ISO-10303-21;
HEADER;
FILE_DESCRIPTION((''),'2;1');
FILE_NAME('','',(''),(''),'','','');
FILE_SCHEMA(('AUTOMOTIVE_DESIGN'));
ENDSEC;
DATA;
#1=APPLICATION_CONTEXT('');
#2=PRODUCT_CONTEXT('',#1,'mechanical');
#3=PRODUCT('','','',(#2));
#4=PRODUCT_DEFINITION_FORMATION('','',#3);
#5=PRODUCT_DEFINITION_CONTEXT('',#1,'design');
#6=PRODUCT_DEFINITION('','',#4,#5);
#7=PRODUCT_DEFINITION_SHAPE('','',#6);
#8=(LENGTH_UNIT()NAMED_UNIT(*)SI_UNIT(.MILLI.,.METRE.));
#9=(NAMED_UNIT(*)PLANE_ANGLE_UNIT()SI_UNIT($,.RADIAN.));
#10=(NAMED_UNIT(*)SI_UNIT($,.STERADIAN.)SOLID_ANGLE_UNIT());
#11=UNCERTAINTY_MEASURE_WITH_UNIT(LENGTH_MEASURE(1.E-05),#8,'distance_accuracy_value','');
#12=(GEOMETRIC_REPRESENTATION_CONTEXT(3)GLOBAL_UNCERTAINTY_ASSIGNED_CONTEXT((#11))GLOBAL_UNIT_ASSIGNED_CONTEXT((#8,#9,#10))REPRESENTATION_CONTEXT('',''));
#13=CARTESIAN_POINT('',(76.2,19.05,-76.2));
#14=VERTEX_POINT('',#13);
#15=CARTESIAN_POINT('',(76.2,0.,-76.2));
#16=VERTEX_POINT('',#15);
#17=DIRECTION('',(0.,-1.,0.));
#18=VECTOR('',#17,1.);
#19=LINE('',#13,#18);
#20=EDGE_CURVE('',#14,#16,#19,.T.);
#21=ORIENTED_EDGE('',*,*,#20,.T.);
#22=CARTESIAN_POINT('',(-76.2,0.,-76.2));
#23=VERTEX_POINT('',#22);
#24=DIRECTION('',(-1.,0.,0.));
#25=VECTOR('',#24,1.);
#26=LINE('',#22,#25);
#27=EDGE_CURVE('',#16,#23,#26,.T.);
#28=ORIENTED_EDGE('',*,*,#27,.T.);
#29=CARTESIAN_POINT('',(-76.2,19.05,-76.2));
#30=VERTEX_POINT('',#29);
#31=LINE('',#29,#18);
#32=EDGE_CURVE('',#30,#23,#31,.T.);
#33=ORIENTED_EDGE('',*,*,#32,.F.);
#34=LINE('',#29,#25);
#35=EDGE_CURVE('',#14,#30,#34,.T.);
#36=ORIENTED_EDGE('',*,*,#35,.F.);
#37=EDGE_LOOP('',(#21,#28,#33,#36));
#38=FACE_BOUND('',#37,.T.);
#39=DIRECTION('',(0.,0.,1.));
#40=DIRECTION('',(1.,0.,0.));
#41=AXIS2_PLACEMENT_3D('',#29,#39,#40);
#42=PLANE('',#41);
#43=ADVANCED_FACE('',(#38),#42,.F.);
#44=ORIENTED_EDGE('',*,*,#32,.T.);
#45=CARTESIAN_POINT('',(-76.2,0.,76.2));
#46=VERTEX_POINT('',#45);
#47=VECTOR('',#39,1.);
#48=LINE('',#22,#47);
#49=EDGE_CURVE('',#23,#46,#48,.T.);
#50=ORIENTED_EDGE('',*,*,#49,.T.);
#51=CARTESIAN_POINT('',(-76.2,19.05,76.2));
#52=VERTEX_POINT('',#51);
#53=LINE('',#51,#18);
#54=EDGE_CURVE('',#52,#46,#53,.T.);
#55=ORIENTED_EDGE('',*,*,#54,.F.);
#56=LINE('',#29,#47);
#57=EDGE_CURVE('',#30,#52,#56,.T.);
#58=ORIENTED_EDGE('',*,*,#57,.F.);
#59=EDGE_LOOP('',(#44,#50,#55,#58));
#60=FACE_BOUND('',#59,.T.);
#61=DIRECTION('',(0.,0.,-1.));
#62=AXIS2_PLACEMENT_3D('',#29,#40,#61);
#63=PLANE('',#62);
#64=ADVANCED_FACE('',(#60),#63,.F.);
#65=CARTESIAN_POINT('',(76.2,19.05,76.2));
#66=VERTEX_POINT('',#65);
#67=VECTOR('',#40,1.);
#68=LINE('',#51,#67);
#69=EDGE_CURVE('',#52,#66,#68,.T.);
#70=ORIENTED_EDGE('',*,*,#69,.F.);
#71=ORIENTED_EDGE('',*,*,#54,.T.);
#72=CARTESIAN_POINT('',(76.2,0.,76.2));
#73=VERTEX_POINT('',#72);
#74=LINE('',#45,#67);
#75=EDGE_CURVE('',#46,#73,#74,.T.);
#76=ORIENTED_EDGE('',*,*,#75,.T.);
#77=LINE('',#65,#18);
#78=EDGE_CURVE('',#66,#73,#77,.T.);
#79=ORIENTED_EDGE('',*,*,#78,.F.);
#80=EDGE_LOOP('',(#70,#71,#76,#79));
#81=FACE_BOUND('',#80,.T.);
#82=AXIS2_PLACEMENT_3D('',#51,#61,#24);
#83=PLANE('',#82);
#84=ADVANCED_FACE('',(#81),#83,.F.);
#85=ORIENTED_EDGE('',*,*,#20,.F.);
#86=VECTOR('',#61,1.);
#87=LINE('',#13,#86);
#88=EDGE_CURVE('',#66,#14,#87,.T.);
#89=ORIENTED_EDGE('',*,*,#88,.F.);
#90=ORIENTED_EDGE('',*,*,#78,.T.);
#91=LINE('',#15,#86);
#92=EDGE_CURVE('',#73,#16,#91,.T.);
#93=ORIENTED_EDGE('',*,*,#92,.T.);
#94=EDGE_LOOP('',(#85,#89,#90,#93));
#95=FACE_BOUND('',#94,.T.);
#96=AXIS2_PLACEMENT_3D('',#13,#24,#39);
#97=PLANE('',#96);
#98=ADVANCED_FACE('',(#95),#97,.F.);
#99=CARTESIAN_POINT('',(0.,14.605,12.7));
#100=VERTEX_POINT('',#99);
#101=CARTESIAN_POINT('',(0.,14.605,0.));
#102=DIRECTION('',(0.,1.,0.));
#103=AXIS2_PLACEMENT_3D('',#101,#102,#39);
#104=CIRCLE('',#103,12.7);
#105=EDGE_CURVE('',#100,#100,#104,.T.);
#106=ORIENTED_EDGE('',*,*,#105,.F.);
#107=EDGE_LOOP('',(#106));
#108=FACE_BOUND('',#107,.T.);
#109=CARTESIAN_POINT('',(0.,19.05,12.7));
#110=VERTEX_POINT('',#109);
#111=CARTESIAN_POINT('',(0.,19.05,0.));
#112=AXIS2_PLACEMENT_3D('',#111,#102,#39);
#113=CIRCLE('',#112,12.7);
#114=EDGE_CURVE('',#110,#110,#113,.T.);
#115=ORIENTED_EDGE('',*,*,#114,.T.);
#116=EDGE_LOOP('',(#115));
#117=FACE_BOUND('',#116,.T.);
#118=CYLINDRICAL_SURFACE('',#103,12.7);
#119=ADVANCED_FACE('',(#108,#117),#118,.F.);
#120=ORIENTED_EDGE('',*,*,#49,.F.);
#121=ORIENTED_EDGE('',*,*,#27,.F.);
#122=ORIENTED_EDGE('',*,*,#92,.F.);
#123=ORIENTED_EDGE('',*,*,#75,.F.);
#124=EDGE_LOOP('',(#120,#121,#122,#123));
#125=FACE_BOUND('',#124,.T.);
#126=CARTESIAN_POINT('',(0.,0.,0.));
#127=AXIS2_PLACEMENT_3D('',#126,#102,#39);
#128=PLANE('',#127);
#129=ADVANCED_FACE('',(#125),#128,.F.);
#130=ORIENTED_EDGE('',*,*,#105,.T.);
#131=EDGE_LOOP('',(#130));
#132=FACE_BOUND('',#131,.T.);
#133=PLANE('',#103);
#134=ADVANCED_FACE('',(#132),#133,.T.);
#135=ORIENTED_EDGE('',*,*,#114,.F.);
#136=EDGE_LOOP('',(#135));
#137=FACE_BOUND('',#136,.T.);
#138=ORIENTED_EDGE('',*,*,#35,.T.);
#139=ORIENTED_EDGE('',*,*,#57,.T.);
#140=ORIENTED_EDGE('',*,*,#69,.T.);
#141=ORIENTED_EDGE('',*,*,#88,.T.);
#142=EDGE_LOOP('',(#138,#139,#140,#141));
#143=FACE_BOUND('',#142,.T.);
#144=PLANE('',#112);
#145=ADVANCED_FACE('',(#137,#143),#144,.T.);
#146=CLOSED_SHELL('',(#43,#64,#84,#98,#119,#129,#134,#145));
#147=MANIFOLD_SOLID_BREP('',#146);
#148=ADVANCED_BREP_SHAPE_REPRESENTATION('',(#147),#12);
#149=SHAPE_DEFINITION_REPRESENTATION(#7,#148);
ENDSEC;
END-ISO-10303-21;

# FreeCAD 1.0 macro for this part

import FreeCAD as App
import Part
import Sketcher
from FreeCAD import Vector
Q = App.Units.Quantity

doc = App.newDocument("Part")
params = doc.addObject("Spreadsheet::Sheet", "Params")
for row, (alias, value) in enumerate([
    ("sketch1_width", "6 in"),
    ("pad1_length", "0.75 in"),
    ("sketch2_diameter", "1 in"),
    ("pocket1_length", "0.175 in"),
], start=1):
    params.set(f"A{row}", alias)
    params.set(f"B{row}", "=" + value)
    params.setAlias(f"B{row}", alias)

body = doc.addObject("PartDesign::Body", "Body")

# Sketch on XZ plane
sketch1 = body.newObject("Sketcher::SketchObject", "Sketch")
sketch1.AttachmentSupport = (doc.getObject("XZ_Plane"), [""])
sketch1.MapMode = "FlatFace"
sketch1.addGeometry([
    Part.LineSegment(Vector(-76, -76, 0), Vector(-76, 76, 0)),
    Part.LineSegment(Vector(-76, 76, 0), Vector(76, 76, 0)),
    Part.LineSegment(Vector(76, 76, 0), Vector(76, -76, 0)),
    Part.LineSegment(Vector(76, -76, 0), Vector(-76, -76, 0)),
], False)
sketch1.addConstraint([
    Sketcher.Constraint("Coincident", 0, 2, 1, 1),
    Sketcher.Constraint("Coincident", 1, 2, 2, 1),
    Sketcher.Constraint("Coincident", 2, 2, 3, 1),
    Sketcher.Constraint("Coincident", 3, 2, 0, 1),
    Sketcher.Constraint("Vertical", 0),
    Sketcher.Constraint("Horizontal", 1),
    Sketcher.Constraint("Vertical", 2),
    Sketcher.Constraint("Horizontal", 3),
    Sketcher.Constraint("Symmetric", 0, 2, 2, 2, -1, 1),
    Sketcher.Constraint("Equal", 3, 0),
    Sketcher.Constraint("DistanceX", 1, 1, 1, 2, Q("6 in")),
])
sketch1.setExpression("Constraints[10]", "Params.sketch1_width")
pad1 = body.newObject("PartDesign::Pad", "Pad")
pad1.Profile = sketch1
pad1.setExpression("Length", "Params.pad1_length")
pad1.Reversed = True

# Sketch on XZ plane
sketch2 = body.newObject("Sketcher::SketchObject", "Sketch001")
sketch2.AttachmentSupport = (doc.getObject("XZ_Plane"), [""])
sketch2.MapMode = "FlatFace"
sketch2.AttachmentOffset = App.Placement(Vector(0, 0, -0.75 * 25.4), App.Rotation())
sketch2.addGeometry(Part.Circle(Vector(0, 0, 0), Vector(0, 0, 1), 13), False)
sketch2.addConstraint([
    Sketcher.Constraint("Coincident", 0, 3, -1, 1),
    Sketcher.Constraint("Diameter", 0, Q("1 in")),
])
sketch2.setExpression("Constraints[1]", "Params.sketch2_diameter")
pocket1 = body.newObject("PartDesign::Pocket", "Pocket")
pocket1.Profile = sketch2
pocket1.setExpression("Length", "Params.pocket1_length")
pocket1.Reversed = True

doc.recompute()
